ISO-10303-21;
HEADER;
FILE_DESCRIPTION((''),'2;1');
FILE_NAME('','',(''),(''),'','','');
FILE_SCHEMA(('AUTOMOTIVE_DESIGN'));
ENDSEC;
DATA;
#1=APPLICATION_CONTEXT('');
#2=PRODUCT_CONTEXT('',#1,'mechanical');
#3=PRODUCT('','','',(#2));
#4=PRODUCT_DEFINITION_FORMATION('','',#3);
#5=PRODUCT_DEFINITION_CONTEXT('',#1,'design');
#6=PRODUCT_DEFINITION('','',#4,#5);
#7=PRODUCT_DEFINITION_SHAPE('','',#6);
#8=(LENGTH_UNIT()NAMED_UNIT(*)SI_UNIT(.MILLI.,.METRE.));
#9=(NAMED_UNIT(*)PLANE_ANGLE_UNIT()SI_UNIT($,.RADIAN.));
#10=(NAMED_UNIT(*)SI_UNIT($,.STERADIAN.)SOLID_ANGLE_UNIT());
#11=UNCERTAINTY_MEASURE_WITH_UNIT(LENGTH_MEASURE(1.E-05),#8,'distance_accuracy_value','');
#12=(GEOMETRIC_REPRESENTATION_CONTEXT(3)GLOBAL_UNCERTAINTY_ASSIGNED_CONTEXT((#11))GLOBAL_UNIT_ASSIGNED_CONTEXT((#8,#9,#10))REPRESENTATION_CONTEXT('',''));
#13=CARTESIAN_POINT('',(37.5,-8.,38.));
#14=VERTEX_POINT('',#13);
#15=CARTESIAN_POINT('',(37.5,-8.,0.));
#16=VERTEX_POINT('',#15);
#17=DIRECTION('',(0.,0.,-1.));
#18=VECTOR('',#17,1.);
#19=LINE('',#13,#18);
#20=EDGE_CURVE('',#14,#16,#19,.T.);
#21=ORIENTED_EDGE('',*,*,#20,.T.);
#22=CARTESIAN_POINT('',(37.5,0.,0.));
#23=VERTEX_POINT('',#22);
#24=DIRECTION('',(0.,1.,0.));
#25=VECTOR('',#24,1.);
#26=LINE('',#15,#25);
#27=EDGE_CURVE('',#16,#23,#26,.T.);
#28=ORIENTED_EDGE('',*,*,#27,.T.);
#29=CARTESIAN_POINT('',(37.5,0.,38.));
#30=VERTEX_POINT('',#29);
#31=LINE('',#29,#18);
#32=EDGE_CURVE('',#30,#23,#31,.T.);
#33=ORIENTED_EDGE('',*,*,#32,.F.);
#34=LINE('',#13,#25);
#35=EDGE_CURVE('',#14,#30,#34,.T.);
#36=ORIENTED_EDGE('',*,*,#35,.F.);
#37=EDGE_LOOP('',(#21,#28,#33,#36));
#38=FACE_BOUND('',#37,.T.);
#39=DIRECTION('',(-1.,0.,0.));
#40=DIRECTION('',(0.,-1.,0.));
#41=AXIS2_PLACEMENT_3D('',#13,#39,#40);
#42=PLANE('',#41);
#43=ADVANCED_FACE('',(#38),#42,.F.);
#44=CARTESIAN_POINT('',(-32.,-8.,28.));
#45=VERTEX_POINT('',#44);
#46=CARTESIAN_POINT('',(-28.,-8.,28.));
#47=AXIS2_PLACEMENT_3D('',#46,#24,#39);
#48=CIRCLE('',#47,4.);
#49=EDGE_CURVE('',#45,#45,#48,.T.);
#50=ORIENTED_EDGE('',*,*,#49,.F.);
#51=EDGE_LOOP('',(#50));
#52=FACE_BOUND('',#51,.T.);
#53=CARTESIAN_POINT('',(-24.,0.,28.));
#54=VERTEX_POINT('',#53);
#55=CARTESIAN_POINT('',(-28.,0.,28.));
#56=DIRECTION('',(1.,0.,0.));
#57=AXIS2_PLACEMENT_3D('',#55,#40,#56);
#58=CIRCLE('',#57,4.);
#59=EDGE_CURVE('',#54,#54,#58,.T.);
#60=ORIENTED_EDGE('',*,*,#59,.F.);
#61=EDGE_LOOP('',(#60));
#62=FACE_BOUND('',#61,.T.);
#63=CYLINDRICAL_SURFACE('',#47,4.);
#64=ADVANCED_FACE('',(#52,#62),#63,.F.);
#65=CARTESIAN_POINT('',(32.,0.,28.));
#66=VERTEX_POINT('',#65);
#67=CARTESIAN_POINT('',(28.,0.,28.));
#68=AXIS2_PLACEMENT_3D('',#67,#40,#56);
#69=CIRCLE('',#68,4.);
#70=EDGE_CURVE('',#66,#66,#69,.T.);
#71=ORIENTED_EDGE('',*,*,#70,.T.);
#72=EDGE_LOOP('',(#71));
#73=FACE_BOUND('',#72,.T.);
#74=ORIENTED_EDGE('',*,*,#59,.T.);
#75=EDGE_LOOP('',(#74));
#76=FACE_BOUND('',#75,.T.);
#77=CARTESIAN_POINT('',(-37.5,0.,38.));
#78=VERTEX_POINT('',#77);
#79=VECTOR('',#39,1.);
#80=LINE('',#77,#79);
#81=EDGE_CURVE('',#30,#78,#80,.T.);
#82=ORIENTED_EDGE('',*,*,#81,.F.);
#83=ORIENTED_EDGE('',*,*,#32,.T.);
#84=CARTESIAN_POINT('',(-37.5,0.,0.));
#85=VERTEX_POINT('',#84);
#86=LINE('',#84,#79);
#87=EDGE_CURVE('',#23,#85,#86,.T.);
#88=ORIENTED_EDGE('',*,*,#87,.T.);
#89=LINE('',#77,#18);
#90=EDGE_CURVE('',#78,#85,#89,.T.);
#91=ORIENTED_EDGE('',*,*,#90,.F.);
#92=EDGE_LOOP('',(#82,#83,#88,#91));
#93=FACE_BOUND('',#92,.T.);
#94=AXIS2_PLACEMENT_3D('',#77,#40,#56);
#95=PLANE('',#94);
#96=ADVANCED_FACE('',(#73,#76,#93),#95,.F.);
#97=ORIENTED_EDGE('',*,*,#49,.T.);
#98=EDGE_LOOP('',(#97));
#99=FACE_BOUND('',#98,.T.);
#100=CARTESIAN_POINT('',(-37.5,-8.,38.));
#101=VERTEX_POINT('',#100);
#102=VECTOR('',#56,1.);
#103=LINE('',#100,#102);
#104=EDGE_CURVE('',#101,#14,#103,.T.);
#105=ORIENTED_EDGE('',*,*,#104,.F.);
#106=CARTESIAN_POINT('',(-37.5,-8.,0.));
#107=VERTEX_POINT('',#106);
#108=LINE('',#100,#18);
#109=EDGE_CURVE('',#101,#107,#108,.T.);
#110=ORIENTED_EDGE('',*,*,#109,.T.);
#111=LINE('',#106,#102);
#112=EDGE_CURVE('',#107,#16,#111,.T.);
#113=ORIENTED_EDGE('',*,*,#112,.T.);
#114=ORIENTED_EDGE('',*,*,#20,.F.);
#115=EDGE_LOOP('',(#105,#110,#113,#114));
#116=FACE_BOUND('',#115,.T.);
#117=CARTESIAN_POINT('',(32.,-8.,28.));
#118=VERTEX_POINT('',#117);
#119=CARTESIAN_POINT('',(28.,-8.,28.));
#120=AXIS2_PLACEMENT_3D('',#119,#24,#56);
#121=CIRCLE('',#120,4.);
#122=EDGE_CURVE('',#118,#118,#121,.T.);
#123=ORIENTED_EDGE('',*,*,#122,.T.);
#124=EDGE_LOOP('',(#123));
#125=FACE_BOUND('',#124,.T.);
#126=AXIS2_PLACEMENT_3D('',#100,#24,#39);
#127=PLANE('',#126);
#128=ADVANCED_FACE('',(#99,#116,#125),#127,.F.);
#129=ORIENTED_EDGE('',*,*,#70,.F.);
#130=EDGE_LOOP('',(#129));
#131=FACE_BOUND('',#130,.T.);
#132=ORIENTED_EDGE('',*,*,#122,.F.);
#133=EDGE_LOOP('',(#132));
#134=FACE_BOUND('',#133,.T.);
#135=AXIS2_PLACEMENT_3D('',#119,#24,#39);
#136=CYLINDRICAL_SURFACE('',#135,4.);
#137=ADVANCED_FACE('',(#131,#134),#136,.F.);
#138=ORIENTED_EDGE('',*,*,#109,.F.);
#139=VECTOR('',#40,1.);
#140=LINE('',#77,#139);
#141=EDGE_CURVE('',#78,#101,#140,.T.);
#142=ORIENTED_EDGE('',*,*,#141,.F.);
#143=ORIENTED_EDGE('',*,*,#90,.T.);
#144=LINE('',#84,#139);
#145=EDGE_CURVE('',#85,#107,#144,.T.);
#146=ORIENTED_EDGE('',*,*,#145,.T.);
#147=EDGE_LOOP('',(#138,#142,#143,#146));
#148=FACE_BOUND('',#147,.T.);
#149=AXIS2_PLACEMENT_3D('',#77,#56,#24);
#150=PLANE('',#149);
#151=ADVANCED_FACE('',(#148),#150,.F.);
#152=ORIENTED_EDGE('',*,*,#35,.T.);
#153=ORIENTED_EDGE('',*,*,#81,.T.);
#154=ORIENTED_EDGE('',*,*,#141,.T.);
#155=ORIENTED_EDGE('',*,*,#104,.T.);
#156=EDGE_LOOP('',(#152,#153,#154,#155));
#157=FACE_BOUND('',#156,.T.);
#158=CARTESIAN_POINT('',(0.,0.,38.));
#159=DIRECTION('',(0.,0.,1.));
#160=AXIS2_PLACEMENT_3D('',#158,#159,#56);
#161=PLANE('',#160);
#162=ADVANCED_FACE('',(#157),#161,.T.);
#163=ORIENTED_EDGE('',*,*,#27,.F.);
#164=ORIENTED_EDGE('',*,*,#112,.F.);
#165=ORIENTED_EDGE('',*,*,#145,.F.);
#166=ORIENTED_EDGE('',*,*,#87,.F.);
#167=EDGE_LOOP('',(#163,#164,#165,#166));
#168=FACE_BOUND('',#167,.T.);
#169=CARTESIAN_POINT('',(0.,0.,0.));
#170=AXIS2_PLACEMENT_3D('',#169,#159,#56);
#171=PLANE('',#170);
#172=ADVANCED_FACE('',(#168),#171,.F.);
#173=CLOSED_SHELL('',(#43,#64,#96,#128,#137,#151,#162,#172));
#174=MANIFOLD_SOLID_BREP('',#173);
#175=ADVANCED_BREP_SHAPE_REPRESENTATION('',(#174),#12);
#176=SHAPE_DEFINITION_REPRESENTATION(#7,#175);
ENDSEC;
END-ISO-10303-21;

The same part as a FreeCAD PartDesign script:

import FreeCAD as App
import Part
import Sketcher
from FreeCAD import Vector

doc = App.newDocument("Part")
body = doc.addObject("PartDesign::Body", "Body")

# Sketch on XY plane
sketch1 = body.newObject("Sketcher::SketchObject", "Sketch")
sketch1.AttachmentSupport = (doc.getObject("XY_Plane"), [""])
sketch1.MapMode = "FlatFace"
sketch1.addGeometry(Part.LineSegment(Vector(-38, 0, 0), Vector(-38, -8, 0)), False)
sketch1.addGeometry(Part.LineSegment(Vector(-38, -8, 0), Vector(38, -8, 0)), False)
sketch1.addGeometry(Part.LineSegment(Vector(38, -8, 0), Vector(38, 0, 0)), False)
sketch1.addGeometry(Part.LineSegment(Vector(38, 0, 0), Vector(-38, 0, 0)), False)
sketch1.addConstraint(Sketcher.Constraint("Coincident", 0, 2, 1, 1))
sketch1.addConstraint(Sketcher.Constraint("Coincident", 1, 2, 2, 1))
sketch1.addConstraint(Sketcher.Constraint("Coincident", 2, 2, 3, 1))
sketch1.addConstraint(Sketcher.Constraint("Coincident", 3, 2, 0, 1))
sketch1.addConstraint(Sketcher.Constraint("Vertical", 0))
sketch1.addConstraint(Sketcher.Constraint("Horizontal", 1))
sketch1.addConstraint(Sketcher.Constraint("Vertical", 2))
sketch1.addConstraint(Sketcher.Constraint("Horizontal", 3))
sketch1.addConstraint(Sketcher.Constraint("Symmetric", 2, 2, 3, 2, -1, 1))
sketch1.addConstraint(Sketcher.Constraint("DistanceX", 1, 1, 1, 2, 75.0))
sketch1.addConstraint(Sketcher.Constraint("DistanceY", 0, 2, 0, 1, 8.0))
pad1 = body.newObject("PartDesign::Pad", "Pad")
pad1.Profile = sketch1
pad1.Length = 38

# Sketch on XZ plane
sketch2 = body.newObject("Sketcher::SketchObject", "Sketch001")
sketch2.AttachmentSupport = (doc.getObject("XZ_Plane"), [""])
sketch2.MapMode = "FlatFace"
sketch2.addGeometry(Part.Circle(Vector(-28, 28, 0), Vector(0, 0, 1), 4), False)
sketch2.addGeometry(Part.Circle(Vector(28, 28, 0), Vector(0, 0, 1), 4), False)
sketch2.addConstraint(Sketcher.Constraint("Equal", 0, 1))
sketch2.addConstraint(Sketcher.Constraint("Symmetric", 0, 3, 1, 3, -2))
sketch2.addConstraint(Sketcher.Constraint("Diameter", 0, 8.0))
sketch2.addConstraint(Sketcher.Constraint("DistanceX", 0, 3, -1, 1, 28.0))
sketch2.addConstraint(Sketcher.Constraint("DistanceY", -1, 1, 0, 3, 28.0))
pocket1 = body.newObject("PartDesign::Pocket", "Pocket")
pocket1.Profile = sketch2
pocket1.Type = "ThroughAll"
pocket1.Midplane = True

doc.recompute()
